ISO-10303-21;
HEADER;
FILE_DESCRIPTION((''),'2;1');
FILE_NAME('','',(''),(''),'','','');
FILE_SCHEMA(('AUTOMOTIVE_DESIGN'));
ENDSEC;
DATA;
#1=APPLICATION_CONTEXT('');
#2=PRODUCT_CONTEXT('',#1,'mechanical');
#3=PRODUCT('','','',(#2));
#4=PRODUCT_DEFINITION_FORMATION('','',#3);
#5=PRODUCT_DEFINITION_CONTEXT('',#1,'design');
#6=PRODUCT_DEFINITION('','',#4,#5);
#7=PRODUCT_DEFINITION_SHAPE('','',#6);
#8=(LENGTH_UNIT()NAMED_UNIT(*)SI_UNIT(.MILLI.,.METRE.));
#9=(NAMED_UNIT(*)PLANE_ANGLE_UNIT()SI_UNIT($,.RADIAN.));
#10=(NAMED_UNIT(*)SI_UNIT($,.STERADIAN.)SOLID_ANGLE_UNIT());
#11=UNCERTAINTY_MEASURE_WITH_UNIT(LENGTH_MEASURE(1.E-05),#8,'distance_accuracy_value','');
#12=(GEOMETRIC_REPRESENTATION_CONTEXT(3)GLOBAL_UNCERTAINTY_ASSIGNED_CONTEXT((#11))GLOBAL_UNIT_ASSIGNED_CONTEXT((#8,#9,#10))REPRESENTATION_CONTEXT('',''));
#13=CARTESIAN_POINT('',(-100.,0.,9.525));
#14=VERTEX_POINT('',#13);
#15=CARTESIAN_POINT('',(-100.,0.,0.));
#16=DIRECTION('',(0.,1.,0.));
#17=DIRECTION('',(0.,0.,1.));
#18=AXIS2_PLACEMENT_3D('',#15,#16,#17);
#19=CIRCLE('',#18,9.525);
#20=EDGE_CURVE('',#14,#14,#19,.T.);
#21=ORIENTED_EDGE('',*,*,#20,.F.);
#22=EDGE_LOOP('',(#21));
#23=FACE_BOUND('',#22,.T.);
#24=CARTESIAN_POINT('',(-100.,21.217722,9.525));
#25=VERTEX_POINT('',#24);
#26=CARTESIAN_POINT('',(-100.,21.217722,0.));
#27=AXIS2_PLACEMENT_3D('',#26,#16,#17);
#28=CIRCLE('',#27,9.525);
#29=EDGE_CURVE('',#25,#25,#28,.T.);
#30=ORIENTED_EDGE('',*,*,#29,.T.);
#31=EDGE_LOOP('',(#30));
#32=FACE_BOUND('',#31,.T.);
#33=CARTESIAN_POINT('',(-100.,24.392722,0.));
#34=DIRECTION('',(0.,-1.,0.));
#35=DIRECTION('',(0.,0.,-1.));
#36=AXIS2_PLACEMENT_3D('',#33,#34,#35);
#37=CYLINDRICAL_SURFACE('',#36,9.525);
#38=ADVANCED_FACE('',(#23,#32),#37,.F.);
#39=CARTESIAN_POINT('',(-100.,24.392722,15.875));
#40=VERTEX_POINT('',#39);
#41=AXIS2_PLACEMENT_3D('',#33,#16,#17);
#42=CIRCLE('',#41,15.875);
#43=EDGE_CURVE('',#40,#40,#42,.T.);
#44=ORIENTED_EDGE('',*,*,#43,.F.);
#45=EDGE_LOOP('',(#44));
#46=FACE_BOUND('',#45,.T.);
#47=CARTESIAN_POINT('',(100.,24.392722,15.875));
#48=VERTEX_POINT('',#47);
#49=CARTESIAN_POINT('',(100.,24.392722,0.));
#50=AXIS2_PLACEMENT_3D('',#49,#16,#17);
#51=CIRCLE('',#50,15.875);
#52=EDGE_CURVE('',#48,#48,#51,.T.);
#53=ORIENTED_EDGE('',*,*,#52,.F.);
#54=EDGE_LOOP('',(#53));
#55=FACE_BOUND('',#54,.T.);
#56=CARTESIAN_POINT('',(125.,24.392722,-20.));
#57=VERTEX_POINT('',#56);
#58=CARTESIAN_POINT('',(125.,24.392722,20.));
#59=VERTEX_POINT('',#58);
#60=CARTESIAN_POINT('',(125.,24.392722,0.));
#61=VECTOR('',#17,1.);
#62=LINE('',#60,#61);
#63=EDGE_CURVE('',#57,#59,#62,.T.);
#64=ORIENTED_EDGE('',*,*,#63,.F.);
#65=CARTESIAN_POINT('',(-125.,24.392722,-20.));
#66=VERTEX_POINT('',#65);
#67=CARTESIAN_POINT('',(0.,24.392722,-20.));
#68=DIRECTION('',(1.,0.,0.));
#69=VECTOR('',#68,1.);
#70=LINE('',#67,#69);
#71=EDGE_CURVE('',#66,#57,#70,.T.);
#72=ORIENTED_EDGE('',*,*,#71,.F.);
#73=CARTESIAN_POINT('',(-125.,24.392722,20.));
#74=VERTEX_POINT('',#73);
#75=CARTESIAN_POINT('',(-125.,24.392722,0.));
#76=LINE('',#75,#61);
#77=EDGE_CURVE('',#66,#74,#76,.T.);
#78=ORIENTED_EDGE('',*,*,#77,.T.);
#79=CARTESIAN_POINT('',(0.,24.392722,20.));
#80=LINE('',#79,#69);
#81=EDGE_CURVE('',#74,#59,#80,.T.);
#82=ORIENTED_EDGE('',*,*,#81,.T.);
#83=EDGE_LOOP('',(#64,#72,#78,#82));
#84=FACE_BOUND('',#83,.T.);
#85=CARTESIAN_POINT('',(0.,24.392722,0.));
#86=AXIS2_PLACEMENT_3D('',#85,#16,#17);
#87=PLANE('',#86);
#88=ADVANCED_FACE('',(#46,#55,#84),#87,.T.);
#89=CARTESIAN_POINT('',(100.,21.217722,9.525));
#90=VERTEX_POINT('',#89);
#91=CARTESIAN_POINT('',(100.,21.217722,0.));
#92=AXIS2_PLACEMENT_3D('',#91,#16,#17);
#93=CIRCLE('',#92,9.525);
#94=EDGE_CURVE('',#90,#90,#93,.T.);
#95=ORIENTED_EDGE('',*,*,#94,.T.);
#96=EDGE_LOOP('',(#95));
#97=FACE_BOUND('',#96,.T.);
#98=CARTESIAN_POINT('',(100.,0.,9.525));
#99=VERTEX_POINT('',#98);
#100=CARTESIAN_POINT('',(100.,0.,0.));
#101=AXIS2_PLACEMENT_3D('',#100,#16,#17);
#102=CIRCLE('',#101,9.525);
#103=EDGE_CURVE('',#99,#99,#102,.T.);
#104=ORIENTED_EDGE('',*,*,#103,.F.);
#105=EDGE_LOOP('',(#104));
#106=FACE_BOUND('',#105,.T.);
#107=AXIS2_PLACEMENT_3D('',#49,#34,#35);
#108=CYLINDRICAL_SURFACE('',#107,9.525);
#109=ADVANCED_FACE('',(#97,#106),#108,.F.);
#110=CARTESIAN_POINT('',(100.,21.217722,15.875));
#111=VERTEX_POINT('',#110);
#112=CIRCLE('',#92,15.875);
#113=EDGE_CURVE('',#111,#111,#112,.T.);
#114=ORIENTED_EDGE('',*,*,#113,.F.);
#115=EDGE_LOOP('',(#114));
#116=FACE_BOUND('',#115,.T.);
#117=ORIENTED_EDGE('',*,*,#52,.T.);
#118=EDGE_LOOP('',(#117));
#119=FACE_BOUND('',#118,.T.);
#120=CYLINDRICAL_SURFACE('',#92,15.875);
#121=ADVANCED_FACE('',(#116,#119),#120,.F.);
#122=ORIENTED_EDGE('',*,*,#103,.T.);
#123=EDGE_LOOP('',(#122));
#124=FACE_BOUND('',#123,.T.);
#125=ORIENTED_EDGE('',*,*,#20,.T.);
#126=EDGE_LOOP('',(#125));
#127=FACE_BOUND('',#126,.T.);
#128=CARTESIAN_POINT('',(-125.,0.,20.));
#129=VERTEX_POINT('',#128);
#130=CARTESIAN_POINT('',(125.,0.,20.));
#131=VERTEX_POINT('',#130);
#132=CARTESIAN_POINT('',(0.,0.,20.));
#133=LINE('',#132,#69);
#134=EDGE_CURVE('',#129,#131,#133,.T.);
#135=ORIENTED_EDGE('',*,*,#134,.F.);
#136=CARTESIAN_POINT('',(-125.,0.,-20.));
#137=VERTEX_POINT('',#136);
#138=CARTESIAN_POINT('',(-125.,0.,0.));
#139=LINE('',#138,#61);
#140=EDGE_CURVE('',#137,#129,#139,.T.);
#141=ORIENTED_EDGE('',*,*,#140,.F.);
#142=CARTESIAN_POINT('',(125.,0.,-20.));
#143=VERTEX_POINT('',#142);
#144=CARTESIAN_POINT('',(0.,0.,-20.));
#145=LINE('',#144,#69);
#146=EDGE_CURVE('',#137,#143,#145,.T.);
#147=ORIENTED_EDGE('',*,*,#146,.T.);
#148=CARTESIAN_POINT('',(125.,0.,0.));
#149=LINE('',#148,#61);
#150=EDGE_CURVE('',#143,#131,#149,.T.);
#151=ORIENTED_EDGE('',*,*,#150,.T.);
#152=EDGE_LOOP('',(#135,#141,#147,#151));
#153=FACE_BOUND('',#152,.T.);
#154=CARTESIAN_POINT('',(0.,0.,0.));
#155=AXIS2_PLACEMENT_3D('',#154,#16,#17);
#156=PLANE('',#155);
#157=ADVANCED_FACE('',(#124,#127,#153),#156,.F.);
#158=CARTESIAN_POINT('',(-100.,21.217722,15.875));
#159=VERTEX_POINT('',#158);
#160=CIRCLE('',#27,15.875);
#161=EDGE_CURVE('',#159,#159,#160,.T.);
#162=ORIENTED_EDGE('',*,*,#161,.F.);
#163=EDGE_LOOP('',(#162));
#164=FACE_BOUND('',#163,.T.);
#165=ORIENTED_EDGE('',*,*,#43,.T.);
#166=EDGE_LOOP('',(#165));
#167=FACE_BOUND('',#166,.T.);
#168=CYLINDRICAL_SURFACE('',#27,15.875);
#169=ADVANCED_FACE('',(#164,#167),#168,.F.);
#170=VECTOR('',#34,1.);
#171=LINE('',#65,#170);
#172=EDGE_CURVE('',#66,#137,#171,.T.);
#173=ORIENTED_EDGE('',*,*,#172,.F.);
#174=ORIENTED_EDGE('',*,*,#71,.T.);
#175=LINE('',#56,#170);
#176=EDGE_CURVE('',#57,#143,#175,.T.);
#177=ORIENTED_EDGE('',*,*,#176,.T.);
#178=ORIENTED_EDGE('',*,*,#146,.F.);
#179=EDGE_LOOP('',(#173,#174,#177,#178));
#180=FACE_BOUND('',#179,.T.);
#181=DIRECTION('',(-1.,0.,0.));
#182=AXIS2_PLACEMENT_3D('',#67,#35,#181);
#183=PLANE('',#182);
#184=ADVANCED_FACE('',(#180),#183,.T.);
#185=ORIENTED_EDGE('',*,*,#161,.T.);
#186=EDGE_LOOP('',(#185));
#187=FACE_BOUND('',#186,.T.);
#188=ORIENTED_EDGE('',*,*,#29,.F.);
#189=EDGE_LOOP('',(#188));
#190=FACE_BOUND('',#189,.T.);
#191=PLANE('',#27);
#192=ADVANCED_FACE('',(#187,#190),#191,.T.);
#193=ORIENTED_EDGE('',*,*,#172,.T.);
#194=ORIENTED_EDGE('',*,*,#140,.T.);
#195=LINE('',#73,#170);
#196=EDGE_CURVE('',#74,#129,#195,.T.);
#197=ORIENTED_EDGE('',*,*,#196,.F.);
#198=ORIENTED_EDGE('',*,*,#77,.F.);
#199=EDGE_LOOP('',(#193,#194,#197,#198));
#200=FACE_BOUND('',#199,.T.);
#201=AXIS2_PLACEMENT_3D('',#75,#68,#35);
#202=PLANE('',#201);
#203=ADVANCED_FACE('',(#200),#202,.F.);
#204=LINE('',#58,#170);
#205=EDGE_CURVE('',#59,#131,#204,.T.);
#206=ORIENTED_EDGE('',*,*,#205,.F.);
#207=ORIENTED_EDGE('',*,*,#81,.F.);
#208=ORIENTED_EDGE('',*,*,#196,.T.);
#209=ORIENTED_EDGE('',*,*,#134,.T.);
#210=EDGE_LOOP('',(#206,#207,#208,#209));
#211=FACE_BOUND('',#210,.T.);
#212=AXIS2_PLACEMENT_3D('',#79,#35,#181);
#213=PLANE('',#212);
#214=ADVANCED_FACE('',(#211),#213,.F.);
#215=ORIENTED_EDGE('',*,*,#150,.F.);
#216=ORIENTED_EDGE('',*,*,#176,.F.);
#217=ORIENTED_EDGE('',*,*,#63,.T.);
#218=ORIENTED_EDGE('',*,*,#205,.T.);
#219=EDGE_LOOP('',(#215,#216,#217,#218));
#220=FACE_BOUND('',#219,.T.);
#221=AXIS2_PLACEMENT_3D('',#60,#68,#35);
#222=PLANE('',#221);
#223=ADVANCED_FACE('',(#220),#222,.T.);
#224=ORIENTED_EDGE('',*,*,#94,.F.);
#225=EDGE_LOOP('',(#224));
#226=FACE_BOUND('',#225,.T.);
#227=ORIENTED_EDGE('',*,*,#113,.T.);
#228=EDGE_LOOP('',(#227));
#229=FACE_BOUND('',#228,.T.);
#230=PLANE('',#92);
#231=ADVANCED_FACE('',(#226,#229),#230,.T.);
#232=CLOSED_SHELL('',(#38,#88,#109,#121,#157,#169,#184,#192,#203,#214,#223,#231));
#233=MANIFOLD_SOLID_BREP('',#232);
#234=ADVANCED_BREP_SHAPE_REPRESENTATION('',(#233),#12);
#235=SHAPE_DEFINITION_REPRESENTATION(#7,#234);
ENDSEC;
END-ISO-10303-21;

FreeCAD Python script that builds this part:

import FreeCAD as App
import Part
import Sketcher
from FreeCAD import Vector
Q = App.Units.Quantity

doc = App.newDocument("Part")
body = doc.addObject("PartDesign::Body", "Body")

# Sketch on XZ plane
sketch1 = body.newObject("Sketcher::SketchObject", "Sketch")
sketch1.AttachmentSupport = (doc.getObject("XZ_Plane"), [""])
sketch1.MapMode = "FlatFace"
sketch1.addGeometry([
    Part.LineSegment(Vector(-125, -20, 0), Vector(-125, 20, 0)),  # 0
    Part.LineSegment(Vector(-125, 20, 0), Vector(125, 20, 0)),  # 1
    Part.LineSegment(Vector(125, 20, 0), Vector(125, -20, 0)),  # 2
    Part.LineSegment(Vector(125, -20, 0), Vector(-125, -20, 0)),  # 3
    Part.Circle(Vector(-100, 0, 0), Vector(0, 0, 1), 9.525),  # 4
    Part.Circle(Vector(100, 0, 0), Vector(0, 0, 1), 9.525),  # 5
], False)
sketch1.addConstraint([
    Sketcher.Constraint("Coincident", 0, 2, 1, 1),
    Sketcher.Constraint("Coincident", 1, 2, 2, 1),
    Sketcher.Constraint("Coincident", 2, 2, 3, 1),
    Sketcher.Constraint("Coincident", 3, 2, 0, 1),
    Sketcher.Constraint("Vertical", 0),
    Sketcher.Constraint("Horizontal", 1),
    Sketcher.Constraint("Vertical", 2),
    Sketcher.Constraint("Horizontal", 3),
    Sketcher.Constraint("Equal", 4, 5),
    Sketcher.Constraint("Symmetric", 4, 3, 5, 3, -1, 1),
    Sketcher.Constraint("Symmetric", 0, 2, 2, 2, -1, 1),
    Sketcher.Constraint("PointOnObject", 4, 3, -1),
    Sketcher.Constraint("Diameter", 4, Q("0.75 in")),
    Sketcher.Constraint("DistanceX", 1, 1, 1, 2, Q("250 mm")),
    Sketcher.Constraint("DistanceY", 0, 1, 0, 2, Q("40 mm")),
    Sketcher.Constraint("DistanceX", 4, 3, -1, 1, Q("100 mm")),
])
pad1 = body.newObject("PartDesign::Pad", "Pad")
pad1.Profile = sketch1
pad1.Length = 24.392722
pad1.Reversed = True

# Sketch on XZ plane
sketch2 = body.newObject("Sketcher::SketchObject", "Sketch001")
sketch2.AttachmentSupport = (doc.getObject("XZ_Plane"), [""])
sketch2.MapMode = "FlatFace"
sketch2.AttachmentOffset = App.Placement(Vector(0, 0, -24.392722), App.Rotation())
sketch2.addGeometry([
    Part.Circle(Vector(-100, 0, 0), Vector(0, 0, 1), 15.875),
    Part.Circle(Vector(100, 0, 0), Vector(0, 0, 1), 15.875),
], False)
sketch2.addConstraint([
    Sketcher.Constraint("Equal", 0, 1),
    Sketcher.Constraint("Symmetric", 0, 3, 1, 3, -1, 1),
    Sketcher.Constraint("PointOnObject", 0, 3, -1),
    Sketcher.Constraint("Diameter", 0, Q("1.25 in")),
    Sketcher.Constraint("DistanceX", 0, 3, -1, 1, Q("100 mm")),
])
pocket1 = body.newObject("PartDesign::Pocket", "Pocket")
pocket1.Profile = sketch2
pocket1.Length = Q("0.125 in")
pocket1.Reversed = True

doc.recompute()
